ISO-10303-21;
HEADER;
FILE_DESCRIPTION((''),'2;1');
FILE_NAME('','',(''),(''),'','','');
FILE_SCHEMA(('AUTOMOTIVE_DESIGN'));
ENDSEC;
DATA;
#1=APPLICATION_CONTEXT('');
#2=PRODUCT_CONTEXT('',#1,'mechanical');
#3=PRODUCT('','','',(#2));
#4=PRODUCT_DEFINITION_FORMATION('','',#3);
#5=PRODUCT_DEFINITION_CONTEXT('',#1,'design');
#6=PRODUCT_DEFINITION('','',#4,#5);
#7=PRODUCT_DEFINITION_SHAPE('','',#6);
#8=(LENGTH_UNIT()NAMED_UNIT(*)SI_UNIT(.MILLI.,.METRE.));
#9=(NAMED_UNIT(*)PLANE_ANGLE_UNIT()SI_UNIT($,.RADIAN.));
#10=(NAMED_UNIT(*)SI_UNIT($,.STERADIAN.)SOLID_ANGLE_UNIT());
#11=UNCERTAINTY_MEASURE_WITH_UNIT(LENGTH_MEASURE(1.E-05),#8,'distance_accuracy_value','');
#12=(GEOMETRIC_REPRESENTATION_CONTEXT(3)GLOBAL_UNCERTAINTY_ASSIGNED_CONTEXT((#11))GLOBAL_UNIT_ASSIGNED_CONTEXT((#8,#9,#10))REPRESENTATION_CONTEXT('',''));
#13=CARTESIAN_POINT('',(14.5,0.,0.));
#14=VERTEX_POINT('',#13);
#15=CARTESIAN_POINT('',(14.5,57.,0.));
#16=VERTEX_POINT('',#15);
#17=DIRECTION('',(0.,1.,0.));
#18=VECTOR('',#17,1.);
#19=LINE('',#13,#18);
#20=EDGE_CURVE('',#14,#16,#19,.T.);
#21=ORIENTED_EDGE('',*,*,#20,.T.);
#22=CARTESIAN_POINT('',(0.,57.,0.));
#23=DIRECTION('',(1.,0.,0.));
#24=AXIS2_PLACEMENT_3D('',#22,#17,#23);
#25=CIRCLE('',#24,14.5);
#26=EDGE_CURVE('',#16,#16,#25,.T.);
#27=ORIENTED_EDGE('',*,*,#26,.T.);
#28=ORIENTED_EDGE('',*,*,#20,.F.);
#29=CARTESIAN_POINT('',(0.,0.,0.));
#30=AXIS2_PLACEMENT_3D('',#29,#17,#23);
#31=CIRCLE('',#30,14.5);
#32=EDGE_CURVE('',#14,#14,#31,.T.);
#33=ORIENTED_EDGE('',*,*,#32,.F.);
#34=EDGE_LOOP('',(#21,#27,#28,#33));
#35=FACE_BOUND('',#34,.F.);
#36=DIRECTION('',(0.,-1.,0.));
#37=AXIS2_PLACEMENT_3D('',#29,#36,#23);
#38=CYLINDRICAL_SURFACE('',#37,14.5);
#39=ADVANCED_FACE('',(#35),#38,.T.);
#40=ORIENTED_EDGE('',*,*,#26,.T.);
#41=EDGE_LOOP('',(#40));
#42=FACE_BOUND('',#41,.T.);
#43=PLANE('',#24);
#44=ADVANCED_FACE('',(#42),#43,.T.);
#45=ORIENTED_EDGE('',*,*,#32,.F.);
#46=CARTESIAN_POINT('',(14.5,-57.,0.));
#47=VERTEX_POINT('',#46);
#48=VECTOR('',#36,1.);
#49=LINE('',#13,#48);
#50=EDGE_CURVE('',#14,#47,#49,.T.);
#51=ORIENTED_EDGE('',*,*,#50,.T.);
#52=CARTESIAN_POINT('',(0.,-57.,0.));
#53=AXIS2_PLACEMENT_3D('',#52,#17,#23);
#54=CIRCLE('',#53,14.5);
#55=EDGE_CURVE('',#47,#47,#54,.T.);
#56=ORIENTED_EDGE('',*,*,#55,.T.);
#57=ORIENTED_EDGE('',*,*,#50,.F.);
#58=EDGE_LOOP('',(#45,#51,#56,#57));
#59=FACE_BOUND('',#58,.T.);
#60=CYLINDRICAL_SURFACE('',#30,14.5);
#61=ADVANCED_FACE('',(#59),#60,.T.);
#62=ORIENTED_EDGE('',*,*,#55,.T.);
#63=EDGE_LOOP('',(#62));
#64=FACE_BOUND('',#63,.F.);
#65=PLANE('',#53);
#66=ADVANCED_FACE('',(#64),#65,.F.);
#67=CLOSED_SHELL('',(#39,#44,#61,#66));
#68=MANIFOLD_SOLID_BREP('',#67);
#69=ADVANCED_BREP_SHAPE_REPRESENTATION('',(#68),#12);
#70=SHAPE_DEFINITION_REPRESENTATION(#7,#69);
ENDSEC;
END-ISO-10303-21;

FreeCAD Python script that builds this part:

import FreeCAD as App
import Part
import Sketcher
Q = App.Units.Quantity

doc = App.newDocument("Part")
body = doc.addObject("PartDesign::Body", "Body")

sketch1 = doc.addObject("Sketcher::SketchObject", "Sketch")
body.addObject(sketch1)
sketch1.AttachmentSupport = (doc.XZ_Plane, [""])
sketch1.MapMode = "FlatFace"
sketch1.addGeometry(Part.Circle(App.Vector(0, 0, 0), App.Vector(0, 0, 1), 14), False)
sketch1.addConstraint([
    Sketcher.Constraint("Coincident", 0, 3, -1, 1),
    Sketcher.Constraint("Diameter", 0, Q("29 mm")),
])
pad1 = doc.addObject("PartDesign::Pad", "Pad")
body.addObject(pad1)
pad1.Profile = sketch1
pad1.Length = 114
pad1.Midplane = True

doc.recompute()
